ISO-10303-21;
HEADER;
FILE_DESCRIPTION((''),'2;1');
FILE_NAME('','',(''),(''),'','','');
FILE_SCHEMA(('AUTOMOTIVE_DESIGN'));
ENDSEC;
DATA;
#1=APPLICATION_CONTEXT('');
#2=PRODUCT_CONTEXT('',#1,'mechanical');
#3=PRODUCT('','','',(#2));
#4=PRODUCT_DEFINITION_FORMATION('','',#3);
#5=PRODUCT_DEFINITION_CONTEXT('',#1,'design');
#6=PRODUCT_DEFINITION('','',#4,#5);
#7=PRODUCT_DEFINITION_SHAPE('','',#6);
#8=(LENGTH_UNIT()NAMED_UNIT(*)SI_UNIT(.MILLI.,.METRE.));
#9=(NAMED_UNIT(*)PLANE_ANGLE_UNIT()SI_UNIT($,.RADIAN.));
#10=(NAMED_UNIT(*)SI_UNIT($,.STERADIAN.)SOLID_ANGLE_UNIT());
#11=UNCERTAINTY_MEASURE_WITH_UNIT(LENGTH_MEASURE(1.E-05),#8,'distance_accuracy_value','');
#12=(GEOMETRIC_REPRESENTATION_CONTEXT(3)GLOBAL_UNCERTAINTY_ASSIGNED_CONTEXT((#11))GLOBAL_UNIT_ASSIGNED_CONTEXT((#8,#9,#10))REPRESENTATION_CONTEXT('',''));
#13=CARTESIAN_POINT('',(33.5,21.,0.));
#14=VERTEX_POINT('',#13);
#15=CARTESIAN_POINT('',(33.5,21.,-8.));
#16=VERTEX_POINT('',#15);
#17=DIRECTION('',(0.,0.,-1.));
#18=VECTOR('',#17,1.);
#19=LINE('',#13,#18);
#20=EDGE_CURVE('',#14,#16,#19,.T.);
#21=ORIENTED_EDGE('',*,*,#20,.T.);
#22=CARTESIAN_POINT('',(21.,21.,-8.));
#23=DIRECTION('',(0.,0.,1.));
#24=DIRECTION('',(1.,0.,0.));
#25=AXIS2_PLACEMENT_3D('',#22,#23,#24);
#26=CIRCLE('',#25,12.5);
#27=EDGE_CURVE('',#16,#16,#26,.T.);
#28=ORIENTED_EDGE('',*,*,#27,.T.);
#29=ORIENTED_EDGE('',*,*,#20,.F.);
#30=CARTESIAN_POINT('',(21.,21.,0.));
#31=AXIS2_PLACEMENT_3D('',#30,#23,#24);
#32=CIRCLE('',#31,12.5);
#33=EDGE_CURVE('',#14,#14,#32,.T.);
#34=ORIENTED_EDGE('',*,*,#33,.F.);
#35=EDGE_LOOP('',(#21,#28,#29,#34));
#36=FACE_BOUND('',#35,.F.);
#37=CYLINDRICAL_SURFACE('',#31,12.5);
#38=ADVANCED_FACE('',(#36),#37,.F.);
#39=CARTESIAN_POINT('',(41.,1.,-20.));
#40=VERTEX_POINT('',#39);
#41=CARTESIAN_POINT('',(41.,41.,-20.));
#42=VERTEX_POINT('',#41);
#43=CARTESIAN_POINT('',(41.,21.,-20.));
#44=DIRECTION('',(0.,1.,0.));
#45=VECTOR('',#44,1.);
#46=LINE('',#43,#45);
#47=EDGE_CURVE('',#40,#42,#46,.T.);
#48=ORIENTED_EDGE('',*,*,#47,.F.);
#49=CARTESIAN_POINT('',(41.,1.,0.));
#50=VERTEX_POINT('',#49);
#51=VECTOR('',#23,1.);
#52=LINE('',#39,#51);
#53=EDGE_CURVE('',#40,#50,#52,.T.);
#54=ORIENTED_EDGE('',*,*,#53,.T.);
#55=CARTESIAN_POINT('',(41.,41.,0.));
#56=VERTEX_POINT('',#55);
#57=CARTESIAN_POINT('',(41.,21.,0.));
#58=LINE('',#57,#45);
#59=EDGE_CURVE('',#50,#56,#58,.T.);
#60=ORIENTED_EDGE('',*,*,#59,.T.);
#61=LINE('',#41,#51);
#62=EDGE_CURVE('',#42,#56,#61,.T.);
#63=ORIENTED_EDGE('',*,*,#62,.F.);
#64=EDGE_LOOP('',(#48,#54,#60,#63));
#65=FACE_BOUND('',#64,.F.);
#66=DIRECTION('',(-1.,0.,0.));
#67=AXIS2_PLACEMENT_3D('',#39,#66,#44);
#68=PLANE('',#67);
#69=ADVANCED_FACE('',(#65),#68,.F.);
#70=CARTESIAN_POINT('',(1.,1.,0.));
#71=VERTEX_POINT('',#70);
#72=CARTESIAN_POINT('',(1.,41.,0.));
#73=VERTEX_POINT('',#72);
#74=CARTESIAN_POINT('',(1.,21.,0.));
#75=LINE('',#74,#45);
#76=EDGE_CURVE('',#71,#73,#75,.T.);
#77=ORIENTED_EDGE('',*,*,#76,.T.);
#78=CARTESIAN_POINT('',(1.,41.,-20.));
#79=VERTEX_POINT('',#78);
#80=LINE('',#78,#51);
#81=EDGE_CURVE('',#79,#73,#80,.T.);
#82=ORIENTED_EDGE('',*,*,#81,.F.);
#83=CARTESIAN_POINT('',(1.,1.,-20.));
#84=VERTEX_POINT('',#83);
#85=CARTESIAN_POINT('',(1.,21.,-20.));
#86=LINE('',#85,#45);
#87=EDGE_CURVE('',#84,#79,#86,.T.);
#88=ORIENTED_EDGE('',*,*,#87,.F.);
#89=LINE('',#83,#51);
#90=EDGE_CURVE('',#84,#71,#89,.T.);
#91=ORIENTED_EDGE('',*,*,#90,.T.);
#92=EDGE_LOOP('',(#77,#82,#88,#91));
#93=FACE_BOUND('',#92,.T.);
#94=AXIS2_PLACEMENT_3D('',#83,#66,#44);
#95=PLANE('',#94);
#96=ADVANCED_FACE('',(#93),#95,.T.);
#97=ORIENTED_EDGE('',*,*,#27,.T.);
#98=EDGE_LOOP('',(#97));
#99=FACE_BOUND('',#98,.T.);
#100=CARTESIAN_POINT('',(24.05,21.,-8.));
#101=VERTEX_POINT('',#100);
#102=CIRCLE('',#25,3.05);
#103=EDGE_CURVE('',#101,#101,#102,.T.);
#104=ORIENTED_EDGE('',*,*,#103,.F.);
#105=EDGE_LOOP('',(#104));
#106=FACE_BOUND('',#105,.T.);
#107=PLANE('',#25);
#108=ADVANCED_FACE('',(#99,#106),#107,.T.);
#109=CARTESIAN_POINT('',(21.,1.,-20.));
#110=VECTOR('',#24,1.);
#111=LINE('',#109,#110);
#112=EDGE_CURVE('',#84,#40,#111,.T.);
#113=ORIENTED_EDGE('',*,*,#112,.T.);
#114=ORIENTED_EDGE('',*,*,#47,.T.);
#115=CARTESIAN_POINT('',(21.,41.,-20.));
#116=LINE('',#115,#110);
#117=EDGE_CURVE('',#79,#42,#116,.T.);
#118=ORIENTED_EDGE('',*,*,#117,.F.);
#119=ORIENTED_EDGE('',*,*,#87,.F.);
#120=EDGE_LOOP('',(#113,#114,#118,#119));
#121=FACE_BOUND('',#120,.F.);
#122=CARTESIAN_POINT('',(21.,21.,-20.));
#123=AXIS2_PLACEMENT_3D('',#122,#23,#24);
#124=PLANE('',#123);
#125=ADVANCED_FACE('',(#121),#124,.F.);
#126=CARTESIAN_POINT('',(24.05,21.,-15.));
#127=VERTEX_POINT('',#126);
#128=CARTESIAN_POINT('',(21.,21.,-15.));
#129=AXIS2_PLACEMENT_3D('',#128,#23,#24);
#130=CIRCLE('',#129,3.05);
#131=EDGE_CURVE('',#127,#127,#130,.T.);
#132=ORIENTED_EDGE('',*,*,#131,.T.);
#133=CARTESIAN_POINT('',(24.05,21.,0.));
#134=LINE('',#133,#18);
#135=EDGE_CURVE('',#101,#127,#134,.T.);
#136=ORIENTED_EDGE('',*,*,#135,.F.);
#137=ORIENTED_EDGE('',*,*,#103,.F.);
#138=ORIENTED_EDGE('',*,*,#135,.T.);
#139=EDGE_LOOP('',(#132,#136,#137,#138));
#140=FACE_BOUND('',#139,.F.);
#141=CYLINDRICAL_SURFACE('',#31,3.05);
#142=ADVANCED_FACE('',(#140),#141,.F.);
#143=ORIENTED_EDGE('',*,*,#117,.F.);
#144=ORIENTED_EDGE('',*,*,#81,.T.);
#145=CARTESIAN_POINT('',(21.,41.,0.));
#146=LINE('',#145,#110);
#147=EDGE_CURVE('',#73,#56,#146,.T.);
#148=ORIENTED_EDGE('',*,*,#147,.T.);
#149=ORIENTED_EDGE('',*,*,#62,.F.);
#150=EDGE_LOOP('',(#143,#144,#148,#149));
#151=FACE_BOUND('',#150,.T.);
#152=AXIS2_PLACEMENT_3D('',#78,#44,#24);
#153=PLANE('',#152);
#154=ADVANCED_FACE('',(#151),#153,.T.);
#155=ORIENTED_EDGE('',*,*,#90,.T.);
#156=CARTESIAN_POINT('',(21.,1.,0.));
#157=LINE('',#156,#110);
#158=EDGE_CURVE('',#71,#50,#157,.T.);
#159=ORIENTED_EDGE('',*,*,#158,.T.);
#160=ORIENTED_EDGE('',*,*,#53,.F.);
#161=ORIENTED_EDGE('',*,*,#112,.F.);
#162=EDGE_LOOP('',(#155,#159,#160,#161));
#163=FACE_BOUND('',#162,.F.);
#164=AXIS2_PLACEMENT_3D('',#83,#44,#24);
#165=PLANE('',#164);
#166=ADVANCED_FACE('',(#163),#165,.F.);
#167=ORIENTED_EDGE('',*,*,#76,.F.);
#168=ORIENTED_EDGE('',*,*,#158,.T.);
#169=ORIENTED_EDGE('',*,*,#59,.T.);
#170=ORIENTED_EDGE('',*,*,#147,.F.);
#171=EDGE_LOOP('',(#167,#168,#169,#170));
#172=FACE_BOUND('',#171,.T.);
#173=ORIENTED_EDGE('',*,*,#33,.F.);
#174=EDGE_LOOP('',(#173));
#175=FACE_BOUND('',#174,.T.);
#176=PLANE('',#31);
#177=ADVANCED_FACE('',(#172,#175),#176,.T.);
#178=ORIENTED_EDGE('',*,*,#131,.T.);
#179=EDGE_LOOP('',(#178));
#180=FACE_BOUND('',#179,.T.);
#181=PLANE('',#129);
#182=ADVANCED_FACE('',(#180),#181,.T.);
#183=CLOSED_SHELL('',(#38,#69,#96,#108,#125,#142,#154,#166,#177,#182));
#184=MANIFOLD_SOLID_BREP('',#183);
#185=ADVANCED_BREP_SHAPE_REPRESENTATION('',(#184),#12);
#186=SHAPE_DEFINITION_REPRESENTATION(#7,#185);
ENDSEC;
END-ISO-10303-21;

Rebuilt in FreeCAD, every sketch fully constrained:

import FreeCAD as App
import Part
import Sketcher

V = App.Vector
Q = App.Units.Quantity


def add_polygon(sketch, points):
    """Adds a closed chain of lines whose ends are joined by coincident constraints."""
    first, n = sketch.GeometryCount, len(points)
    for a, b in zip(points, points[1:] + points[:1]):
        sketch.addGeometry(Part.LineSegment(App.Vector(*a, 0), App.Vector(*b, 0)), False)
    for i in range(n):
        sketch.addConstraint(Sketcher.Constraint("Coincident", first + i, 2, first + (i + 1) % n, 1))

doc = App.newDocument("Part")
body = doc.addObject("PartDesign::Body", "Body")

sketch1 = body.newObject("Sketcher::SketchObject", "Sketch")
sketch1.AttachmentSupport = (doc.getObject("XY_Plane"), [""])
sketch1.MapMode = "FlatFace"
add_polygon(sketch1, [(0, 40), (0, 0), (40, 0), (40, 40)])
sketch1.addConstraint(Sketcher.Constraint("Vertical", 0))
sketch1.addConstraint(Sketcher.Constraint("Horizontal", 1))
sketch1.addConstraint(Sketcher.Constraint("Vertical", 2))
sketch1.addConstraint(Sketcher.Constraint("Horizontal", 3))
sketch1.addConstraint(Sketcher.Constraint("Coincident", 0, 2, -1, 1))
sketch1.addConstraint(Sketcher.Constraint("Equal", 3, 0))
sketch1.addConstraint(Sketcher.Constraint("DistanceX", 1, 1, 1, 2, Q("40 mm")))
pad1 = body.newObject("PartDesign::Pad", "Pad")
pad1.Profile = sketch1
pad1.Length = 20

sketch2 = body.newObject("Sketcher::SketchObject", "Sketch001")
sketch2.AttachmentSupport = (doc.getObject("XY_Plane"), [""])
sketch2.MapMode = "FlatFace"
sketch2.AttachmentOffset = App.Placement(V(0, 0, 20), App.Rotation())
sketch2.addGeometry(Part.Circle(V(20, 20, 0), V(0, 0, 1), 3), False)
sketch2.addConstraint(Sketcher.Constraint("Diameter", 0, Q("6.1 mm")))
sketch2.addConstraint(Sketcher.Constraint("DistanceX", -1, 1, 0, 3, Q("20 mm")))
sketch2.addConstraint(Sketcher.Constraint("DistanceY", -1, 1, 0, 3, Q("20 mm")))
pocket1 = body.newObject("PartDesign::Pocket", "Pocket")
pocket1.Profile = sketch2
pocket1.Length = 15

sketch3 = body.newObject("Sketcher::SketchObject", "Sketch002")
sketch3.AttachmentSupport = (doc.getObject("XY_Plane"), [""])
sketch3.MapMode = "FlatFace"
sketch3.AttachmentOffset = App.Placement(V(0, 0, 20), App.Rotation())
sketch3.addGeometry(Part.Circle(V(20, 20, 0), V(0, 0, 1), 12), False)
sketch3.addConstraint(Sketcher.Constraint("Diameter", 0, Q("25 mm")))
sketch3.addConstraint(Sketcher.Constraint("DistanceX", -1, 1, 0, 3, Q("20 mm")))
sketch3.addConstraint(Sketcher.Constraint("DistanceY", -1, 1, 0, 3, Q("20 mm")))
pocket2 = body.newObject("PartDesign::Pocket", "Pocket001")
pocket2.Profile = sketch3
pocket2.Length = 8
body2 = doc.addObject("PartDesign::Body", "Body001")
doc.recompute()

body.Placement = App.Placement(V(1, 1, -20), App.Rotation(V(0, 0, 1), 0))
boolean = body2.newObject("PartDesign::Boolean", "Boolean")
boolean.Type = "Fuse"
boolean.addObjects([body])

doc.recompute()
